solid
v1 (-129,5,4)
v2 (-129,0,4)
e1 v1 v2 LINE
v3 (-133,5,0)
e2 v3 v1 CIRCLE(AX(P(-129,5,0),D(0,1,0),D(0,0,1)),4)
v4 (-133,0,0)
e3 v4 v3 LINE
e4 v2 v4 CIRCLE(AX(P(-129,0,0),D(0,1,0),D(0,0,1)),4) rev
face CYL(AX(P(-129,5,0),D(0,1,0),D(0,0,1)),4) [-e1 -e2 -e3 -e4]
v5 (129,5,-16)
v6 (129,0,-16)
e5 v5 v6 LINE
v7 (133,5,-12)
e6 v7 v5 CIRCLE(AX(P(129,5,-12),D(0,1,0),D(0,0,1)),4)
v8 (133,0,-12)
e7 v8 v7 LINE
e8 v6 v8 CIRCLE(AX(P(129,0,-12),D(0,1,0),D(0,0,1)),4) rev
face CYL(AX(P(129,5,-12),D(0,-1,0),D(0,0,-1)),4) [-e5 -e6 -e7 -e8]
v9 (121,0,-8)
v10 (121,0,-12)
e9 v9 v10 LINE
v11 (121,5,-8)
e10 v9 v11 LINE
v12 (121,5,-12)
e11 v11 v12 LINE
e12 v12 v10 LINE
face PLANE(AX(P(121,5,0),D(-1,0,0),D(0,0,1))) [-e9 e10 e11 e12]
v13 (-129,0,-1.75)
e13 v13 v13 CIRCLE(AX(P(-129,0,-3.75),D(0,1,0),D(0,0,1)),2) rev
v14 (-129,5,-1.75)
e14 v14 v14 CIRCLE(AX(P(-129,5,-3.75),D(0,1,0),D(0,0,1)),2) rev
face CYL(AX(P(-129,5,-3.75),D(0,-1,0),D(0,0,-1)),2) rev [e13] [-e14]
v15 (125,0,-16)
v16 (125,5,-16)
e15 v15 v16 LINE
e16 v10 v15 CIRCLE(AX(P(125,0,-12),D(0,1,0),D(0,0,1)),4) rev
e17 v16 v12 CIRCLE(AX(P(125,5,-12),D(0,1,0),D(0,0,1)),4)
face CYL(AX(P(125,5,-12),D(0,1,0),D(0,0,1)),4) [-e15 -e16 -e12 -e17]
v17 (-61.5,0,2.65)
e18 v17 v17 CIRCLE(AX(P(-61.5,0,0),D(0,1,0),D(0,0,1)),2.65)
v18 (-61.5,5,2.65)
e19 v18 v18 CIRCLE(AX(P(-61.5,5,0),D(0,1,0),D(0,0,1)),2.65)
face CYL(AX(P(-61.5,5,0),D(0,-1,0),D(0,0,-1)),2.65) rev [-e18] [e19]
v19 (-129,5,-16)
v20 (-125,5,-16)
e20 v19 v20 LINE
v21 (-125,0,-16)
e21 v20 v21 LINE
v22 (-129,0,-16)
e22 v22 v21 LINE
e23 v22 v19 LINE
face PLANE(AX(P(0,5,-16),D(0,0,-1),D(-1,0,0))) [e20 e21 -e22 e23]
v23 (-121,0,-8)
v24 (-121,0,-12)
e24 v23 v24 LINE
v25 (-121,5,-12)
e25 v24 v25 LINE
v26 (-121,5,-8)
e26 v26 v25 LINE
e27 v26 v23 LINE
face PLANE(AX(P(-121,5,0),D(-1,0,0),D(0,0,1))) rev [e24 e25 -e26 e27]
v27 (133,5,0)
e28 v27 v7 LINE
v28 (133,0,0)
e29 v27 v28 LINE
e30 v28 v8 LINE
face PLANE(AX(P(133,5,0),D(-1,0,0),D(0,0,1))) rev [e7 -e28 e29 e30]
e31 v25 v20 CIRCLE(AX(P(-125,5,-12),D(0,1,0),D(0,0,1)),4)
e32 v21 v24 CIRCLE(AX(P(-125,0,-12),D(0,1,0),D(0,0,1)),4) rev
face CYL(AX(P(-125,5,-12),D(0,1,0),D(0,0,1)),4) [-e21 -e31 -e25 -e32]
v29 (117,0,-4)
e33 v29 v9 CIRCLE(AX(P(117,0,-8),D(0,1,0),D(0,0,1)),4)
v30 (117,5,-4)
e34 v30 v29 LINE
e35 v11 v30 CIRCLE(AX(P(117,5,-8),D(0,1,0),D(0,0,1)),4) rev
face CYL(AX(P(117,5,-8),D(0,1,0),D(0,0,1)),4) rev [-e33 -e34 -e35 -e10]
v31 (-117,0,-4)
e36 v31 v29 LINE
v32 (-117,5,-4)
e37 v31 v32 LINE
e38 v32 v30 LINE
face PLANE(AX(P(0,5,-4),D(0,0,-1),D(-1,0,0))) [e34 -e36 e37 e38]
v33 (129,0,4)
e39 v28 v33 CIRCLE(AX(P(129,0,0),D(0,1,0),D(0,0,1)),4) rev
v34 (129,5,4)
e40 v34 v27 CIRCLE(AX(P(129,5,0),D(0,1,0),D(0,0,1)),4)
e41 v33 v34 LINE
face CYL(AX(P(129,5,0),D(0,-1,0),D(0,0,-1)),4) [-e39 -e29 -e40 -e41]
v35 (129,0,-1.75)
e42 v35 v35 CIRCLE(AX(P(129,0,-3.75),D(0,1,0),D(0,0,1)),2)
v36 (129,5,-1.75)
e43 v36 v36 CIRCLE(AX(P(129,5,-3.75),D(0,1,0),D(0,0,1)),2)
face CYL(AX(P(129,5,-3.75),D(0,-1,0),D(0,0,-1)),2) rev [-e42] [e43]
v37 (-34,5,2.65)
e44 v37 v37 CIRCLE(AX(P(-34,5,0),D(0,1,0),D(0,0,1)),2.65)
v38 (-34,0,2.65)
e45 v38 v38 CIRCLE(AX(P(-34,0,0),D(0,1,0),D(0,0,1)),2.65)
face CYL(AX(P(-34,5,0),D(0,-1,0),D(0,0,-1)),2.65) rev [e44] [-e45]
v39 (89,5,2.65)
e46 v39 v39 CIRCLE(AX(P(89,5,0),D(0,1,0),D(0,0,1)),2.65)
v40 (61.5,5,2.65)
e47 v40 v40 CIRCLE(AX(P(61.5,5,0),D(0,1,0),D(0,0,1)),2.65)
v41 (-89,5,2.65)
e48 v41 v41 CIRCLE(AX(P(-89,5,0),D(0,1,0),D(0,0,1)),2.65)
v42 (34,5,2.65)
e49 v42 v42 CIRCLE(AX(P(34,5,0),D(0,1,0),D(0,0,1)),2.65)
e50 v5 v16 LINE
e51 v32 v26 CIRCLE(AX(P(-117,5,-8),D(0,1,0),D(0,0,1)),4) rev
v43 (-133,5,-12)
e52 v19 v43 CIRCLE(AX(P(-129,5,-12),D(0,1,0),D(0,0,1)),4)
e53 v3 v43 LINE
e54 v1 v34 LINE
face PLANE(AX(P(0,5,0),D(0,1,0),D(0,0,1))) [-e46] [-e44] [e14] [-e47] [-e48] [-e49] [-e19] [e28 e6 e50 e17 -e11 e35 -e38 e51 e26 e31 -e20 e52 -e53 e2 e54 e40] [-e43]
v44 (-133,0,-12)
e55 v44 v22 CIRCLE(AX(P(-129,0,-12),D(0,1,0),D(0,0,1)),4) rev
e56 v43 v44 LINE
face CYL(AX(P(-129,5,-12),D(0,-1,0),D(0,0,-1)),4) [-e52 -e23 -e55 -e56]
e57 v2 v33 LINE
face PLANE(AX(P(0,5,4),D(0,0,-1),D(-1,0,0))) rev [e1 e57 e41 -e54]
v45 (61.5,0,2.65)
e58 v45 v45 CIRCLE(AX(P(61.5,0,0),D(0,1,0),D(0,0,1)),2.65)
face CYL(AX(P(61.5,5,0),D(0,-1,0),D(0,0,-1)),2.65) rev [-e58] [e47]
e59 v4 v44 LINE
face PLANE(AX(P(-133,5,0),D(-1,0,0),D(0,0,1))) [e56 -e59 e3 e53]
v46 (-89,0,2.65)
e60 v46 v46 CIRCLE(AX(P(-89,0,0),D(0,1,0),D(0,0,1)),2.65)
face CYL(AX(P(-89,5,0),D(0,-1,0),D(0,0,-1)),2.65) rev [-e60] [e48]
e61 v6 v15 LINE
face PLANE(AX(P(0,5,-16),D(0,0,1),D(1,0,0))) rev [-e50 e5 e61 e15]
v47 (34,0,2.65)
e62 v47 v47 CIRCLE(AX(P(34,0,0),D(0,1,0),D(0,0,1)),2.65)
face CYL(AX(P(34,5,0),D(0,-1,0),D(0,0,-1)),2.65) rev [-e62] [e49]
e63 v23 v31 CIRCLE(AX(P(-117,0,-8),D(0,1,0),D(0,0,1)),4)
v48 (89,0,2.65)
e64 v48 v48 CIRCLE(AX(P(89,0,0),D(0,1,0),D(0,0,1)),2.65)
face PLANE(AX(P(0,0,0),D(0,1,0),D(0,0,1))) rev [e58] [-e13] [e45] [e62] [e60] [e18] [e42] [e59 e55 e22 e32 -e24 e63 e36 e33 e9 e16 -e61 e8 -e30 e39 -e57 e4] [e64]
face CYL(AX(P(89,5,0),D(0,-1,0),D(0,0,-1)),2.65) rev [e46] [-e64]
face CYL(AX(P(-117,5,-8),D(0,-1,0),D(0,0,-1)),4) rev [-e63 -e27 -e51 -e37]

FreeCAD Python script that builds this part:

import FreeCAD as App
import Part
import Sketcher

V = App.Vector


def edges_at(feature, points):
    """Names of the edges that pass closest to the given points."""
    edges = feature.Shape.Edges
    near = lambda p: min(range(len(edges)), key=lambda i: edges[i].distToShape(Part.Vertex(*p))[0])
    return sorted({f"Edge{near(p) + 1}" for p in points})


def add_polygon(sketch, points):
    """Adds a closed chain of lines whose ends are joined by coincident constraints."""
    first, n = sketch.GeometryCount, len(points)
    for a, b in zip(points, points[1:] + points[:1]):
        sketch.addGeometry(Part.LineSegment(App.Vector(*a, 0), App.Vector(*b, 0)), False)
    for i in range(n):
        sketch.addConstraint(Sketcher.Constraint("Coincident", first + i, 2, first + (i + 1) % n, 1))

doc = App.newDocument("Part")
body = doc.addObject("PartDesign::Body", "Body")

sketch1 = doc.addObject("Sketcher::SketchObject", "Sketch")
body.addObject(sketch1)
sketch1.AttachmentSupport = (doc.XZ_Plane, [""])
sketch1.MapMode = "FlatFace"
add_polygon(sketch1, [(-133, 4), (133, 4), (133, -16), (121, -16), (121, -4), (-121, -4), (-121, -16), (-133, -16)])
sketch1.addGeometry(Part.Circle(V(-89, 0, 0), V(0, 0, 1), 2.6), False)
sketch1.addGeometry(Part.Circle(V(-61.5, 0, 0), V(0, 0, 1), 2.6), False)
sketch1.addGeometry(Part.Circle(V(-34, 0, 0), V(0, 0, 1), 2.6), False)
sketch1.addGeometry(Part.Circle(V(34, 0, 0), V(0, 0, 1), 2.6), False)
sketch1.addGeometry(Part.Circle(V(61.5, 0, 0), V(0, 0, 1), 2.6), False)
sketch1.addGeometry(Part.Circle(V(89, 0, 0), V(0, 0, 1), 2.6), False)
sketch1.addGeometry(Part.Circle(V(-129, -3.8, 0), V(0, 0, 1), 2), False)
sketch1.addGeometry(Part.Circle(V(129, -3.8, 0), V(0, 0, 1), 2), False)
sketch1.addConstraint([
    Sketcher.Constraint("Horizontal", 0),
    Sketcher.Constraint("Vertical", 1),
    Sketcher.Constraint("Horizontal", 2),
    Sketcher.Constraint("Vertical", 3),
    Sketcher.Constraint("Horizontal", 4),
    Sketcher.Constraint("Vertical", 5),
    Sketcher.Constraint("Horizontal", 6),
    Sketcher.Constraint("Vertical", 7),
    Sketcher.Constraint("Equal", 8, 9),
    Sketcher.Constraint("Equal", 9, 10),
    Sketcher.Constraint("Equal", 10, 11),
    Sketcher.Constraint("Equal", 11, 12),
    Sketcher.Constraint("Equal", 12, 13),
    Sketcher.Constraint("Equal", 14, 15),
    Sketcher.Constraint("Symmetric", 10, 3, 11, 3, -1, 1),
    Sketcher.Constraint("Symmetric", 9, 3, 12, 3, -1, 1),
    Sketcher.Constraint("Symmetric", 8, 3, 13, 3, -1, 1),
    Sketcher.Constraint("Symmetric", 14, 3, 15, 3, -2),
    Sketcher.Constraint("Symmetric", 2, 2, 5, 2, -2),
    Sketcher.Constraint("PointOnObject", 8, 3, -1),
    Sketcher.Constraint("PointOnObject", 9, 3, -1),
    Sketcher.Constraint("PointOnObject", 10, 3, -1),
    Sketcher.Constraint("Equal", 2, 6),
    Sketcher.Constraint("Equal", 6, 3),
    Sketcher.Constraint("Diameter", 14, 4.0),
    Sketcher.Constraint("Diameter", 8, 5.3),
    Sketcher.Constraint("DistanceX", 0, 1, 0, 2, 266.0),
    Sketcher.Constraint("DistanceX", 2, 2, 2, 1, 12.0),
    Sketcher.Constraint("DistanceY", 1, 2, 1, 1, 20.0),
    Sketcher.Constraint("DistanceX", 8, 3, -1, 1, 89.0),
    Sketcher.Constraint("DistanceX", 10, 3, -1, 1, 34.0),
    Sketcher.Constraint("DistanceX", 14, 3, -1, 1, 129.0),
    Sketcher.Constraint("DistanceY", -1, 1, 0, 2, 4.0),
    Sketcher.Constraint("DistanceX", 9, 3, 12, 3, 123.0),
    Sketcher.Constraint("DistanceY", 14, 3, -1, 1, 3.75),
])
pad1 = doc.addObject("PartDesign::Pad", "Pad")
body.addObject(pad1)
pad1.Profile = sketch1
pad1.Length = 5
pad1.Reversed = True
doc.recompute()

fillet = doc.addObject("PartDesign::Fillet", "Fillet")
body.addObject(fillet)
fillet.Base = (pad1, edges_at(pad1, [
    (-133, 2.5, -16),
    (-121, 2.5, -16),
    (-121, 2.5, -4),
    (121, 2.5, -4),
    (121, 2.5, -16),
    (133, 2.5, -16),
    (133, 2.5, 4),
    (-133, 2.5, 4),
]))
fillet.Radius = 4

doc.recompute()
